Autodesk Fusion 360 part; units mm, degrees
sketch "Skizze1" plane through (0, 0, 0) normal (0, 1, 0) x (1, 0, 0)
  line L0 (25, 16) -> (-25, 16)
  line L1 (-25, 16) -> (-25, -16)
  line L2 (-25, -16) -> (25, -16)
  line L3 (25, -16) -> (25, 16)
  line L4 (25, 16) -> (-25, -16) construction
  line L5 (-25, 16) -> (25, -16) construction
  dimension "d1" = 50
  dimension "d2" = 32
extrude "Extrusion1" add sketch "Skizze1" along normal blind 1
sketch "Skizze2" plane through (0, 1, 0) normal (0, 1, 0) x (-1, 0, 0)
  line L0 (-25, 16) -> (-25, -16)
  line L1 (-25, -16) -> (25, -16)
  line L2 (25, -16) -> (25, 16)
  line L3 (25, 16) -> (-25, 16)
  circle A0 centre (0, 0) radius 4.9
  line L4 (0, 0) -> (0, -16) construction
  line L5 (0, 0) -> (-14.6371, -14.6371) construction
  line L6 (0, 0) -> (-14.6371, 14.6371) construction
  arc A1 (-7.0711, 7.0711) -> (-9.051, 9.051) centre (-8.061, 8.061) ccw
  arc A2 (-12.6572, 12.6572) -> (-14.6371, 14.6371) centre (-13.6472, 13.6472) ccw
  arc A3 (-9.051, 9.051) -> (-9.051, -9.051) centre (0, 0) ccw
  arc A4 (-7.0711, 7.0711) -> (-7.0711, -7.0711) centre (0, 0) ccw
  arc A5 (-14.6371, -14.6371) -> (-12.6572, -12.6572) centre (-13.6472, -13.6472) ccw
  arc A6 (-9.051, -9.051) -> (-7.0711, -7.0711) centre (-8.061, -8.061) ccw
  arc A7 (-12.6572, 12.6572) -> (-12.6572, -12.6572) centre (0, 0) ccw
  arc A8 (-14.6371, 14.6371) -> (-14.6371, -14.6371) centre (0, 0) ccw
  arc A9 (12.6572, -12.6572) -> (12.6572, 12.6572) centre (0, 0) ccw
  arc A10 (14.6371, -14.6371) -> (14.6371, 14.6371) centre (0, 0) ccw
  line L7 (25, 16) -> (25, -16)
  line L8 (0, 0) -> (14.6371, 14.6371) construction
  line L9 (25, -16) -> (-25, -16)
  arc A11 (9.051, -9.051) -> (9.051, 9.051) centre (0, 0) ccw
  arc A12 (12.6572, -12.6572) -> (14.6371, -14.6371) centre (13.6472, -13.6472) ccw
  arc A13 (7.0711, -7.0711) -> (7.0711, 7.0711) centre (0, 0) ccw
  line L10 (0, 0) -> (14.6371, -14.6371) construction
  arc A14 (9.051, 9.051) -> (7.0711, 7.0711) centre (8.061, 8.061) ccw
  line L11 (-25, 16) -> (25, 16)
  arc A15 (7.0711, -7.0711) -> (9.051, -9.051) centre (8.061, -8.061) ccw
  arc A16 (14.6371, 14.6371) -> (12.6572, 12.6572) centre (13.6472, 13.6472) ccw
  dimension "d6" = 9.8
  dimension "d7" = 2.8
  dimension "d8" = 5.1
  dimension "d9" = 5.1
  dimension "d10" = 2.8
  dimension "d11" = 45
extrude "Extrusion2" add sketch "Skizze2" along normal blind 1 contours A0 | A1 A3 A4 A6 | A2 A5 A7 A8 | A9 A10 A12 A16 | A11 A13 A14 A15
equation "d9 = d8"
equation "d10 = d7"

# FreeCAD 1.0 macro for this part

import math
import FreeCAD as App
import Part
import Sketcher

V = App.Vector


def add_polygon(sketch, points):
    """Adds a closed chain of lines whose ends are joined by coincident constraints."""
    first, n = sketch.GeometryCount, len(points)
    for a, b in zip(points, points[1:] + points[:1]):
        sketch.addGeometry(Part.LineSegment(App.Vector(*a, 0), App.Vector(*b, 0)), False)
    for i in range(n):
        sketch.addConstraint(Sketcher.Constraint("Coincident", first + i, 2, first + (i + 1) % n, 1))

doc = App.newDocument("Part")
body = doc.addObject("PartDesign::Body", "Body")

# Sketch on XZ plane
sketch1 = body.newObject("Sketcher::SketchObject", "Sketch")
sketch1.AttachmentSupport = (doc.getObject("XZ_Plane"), [""])
sketch1.MapMode = "FlatFace"
add_polygon(sketch1, [(25, 16), (25, -16), (-25, -16), (-25, 16)])  # lines 0-3
sketch1.addConstraint([
    Sketcher.Constraint("Vertical", 0),
    Sketcher.Constraint("Horizontal", 1),
    Sketcher.Constraint("Vertical", 2),
    Sketcher.Constraint("Horizontal", 3),
    Sketcher.Constraint("Symmetric", 0, 2, 2, 2, -1, 1),
    Sketcher.Constraint("DistanceX", 1, 2, 1, 1, 50.0),
    Sketcher.Constraint("DistanceY", 0, 2, 0, 1, 32.0),
])
pad1 = body.newObject("PartDesign::Pad", "Pad")
pad1.Profile = sketch1
pad1.Length = 1
pad1.Reversed = True

# Sketch on XZ plane
sketch2 = body.newObject("Sketcher::SketchObject", "Sketch001")
sketch2.AttachmentSupport = (doc.getObject("XZ_Plane"), [""])
sketch2.MapMode = "FlatFace"
sketch2.AttachmentOffset = App.Placement(V(0, 0, -1), App.Rotation())
sketch2.addGeometry([
    Part.Circle(V(0, 0, 0), V(0, 0, 1), 4.9),  # 0
    Part.ArcOfCircle(Part.Circle(V(0, 0, 0), V(0, 0, 1), 10), math.radians(-45), math.radians(45)),  # 1
    Part.ArcOfCircle(Part.Circle(V(8.1, 8.1, 0), V(0, 0, 1), 1.4), math.radians(45), math.radians(225)),  # 2
    Part.ArcOfCircle(Part.Circle(V(0, 0, 0), V(0, 0, 1), 12.8), math.radians(-45), math.radians(45)),  # 3
    Part.ArcOfCircle(Part.Circle(V(8.1, -8.1, 0), V(0, 0, 1), 1.4), math.radians(135), math.radians(315)),  # 4
    Part.ArcOfCircle(Part.Circle(V(0, 0, 0), V(0, 0, 1), 17.9), math.radians(-45), math.radians(45)),  # 5
    Part.ArcOfCircle(Part.Circle(V(13.6, 13.6, 0), V(0, 0, 1), 1.4), math.radians(45), math.radians(225)),  # 6
    Part.ArcOfCircle(Part.Circle(V(0, 0, 0), V(0, 0, 1), 20.7), math.radians(-45), math.radians(45)),  # 7
    Part.ArcOfCircle(Part.Circle(V(13.6, -13.6, 0), V(0, 0, 1), 1.4), math.radians(135), math.radians(315)),  # 8
    Part.ArcOfCircle(Part.Circle(V(0, 0, 0), V(0, 0, 1), 17.9), math.radians(135), math.radians(225)),  # 9
    Part.ArcOfCircle(Part.Circle(V(-13.6, -13.6, 0), V(0, 0, 1), 1.4), math.radians(-135), math.radians(45)),  # 10
    Part.ArcOfCircle(Part.Circle(V(0, 0, 0), V(0, 0, 1), 20.7), math.radians(135), math.radians(225)),  # 11
    Part.ArcOfCircle(Part.Circle(V(-13.6, 13.6, 0), V(0, 0, 1), 1.4), math.radians(-45), math.radians(135)),  # 12
    Part.ArcOfCircle(Part.Circle(V(-8.1, -8.1, 0), V(0, 0, 1), 1.4), math.radians(-135), math.radians(45)),  # 13
    Part.ArcOfCircle(Part.Circle(V(0, 0, 0), V(0, 0, 1), 12.8), math.radians(135), math.radians(225)),  # 14
    Part.ArcOfCircle(Part.Circle(V(-8.1, 8.1, 0), V(0, 0, 1), 1.4), math.radians(-45), math.radians(135)),  # 15
    Part.ArcOfCircle(Part.Circle(V(0, 0, 0), V(0, 0, 1), 10), math.radians(135), math.radians(225)),  # 16
], False)
sketch2.addConstraint([
    Sketcher.Constraint("Tangent", 1, 2, 2, 2),
    Sketcher.Constraint("Tangent", 2, 1, 3, 2),
    Sketcher.Constraint("Tangent", 3, 1, 4, 2),
    Sketcher.Constraint("Tangent", 4, 1, 1, 1),
    Sketcher.Constraint("Tangent", 5, 2, 6, 2),
    Sketcher.Constraint("Tangent", 6, 1, 7, 2),
    Sketcher.Constraint("Tangent", 7, 1, 8, 2),
    Sketcher.Constraint("Tangent", 8, 1, 5, 1),
    Sketcher.Constraint("Tangent", 9, 2, 10, 2),
    Sketcher.Constraint("Tangent", 10, 1, 11, 2),
    Sketcher.Constraint("Tangent", 11, 1, 12, 2),
    Sketcher.Constraint("Tangent", 12, 1, 9, 1),
    Sketcher.Constraint("Tangent", 13, 1, 14, 2),
    Sketcher.Constraint("Tangent", 14, 1, 15, 2),
    Sketcher.Constraint("Tangent", 15, 1, 16, 1),
    Sketcher.Constraint("Tangent", 16, 2, 13, 2),
    Sketcher.Constraint("Coincident", 0, 3, -1, 1),
    Sketcher.Constraint("Coincident", 1, 3, -1, 1),
    Sketcher.Constraint("Coincident", 3, 3, -1, 1),
    Sketcher.Constraint("Coincident", 5, 3, -1, 1),
    Sketcher.Constraint("Coincident", 7, 3, -1, 1),
    Sketcher.Constraint("Coincident", 9, 3, -1, 1),
    Sketcher.Constraint("Coincident", 11, 3, -1, 1),
    Sketcher.Constraint("Coincident", 14, 3, -1, 1),
    Sketcher.Constraint("Coincident", 16, 3, -1, 1),
    Sketcher.Constraint("Equal", 4, 6),
    Sketcher.Constraint("Equal", 5, 9),
    Sketcher.Constraint("Equal", 8, 10),
    Sketcher.Constraint("Equal", 12, 13),
    Sketcher.Constraint("Equal", 3, 14),
    Sketcher.Constraint("Horizontal", 8, 3, 10, 3),
    Sketcher.Constraint("Horizontal", 6, 3, 12, 3),
    Sketcher.Constraint("Horizontal", 4, 3, 13, 3),
    Sketcher.Constraint("Horizontal", 2, 3, 15, 3),
    Sketcher.Constraint("Vertical", 2, 3, 4, 3),
    Sketcher.Constraint("Vertical", 6, 3, 8, 3),
    Sketcher.Constraint("Diameter", 0, 9.8),
    Sketcher.Constraint("Radius", 2, 1.4),
    Sketcher.Constraint("Radius", 1, 10.0),
    Sketcher.Constraint("Radius", 5, 17.9),
    Sketcher.Constraint("DistanceX", 1, 2, 2, 3, 0.99),
    Sketcher.Constraint("DistanceX", 6, 3, 6, 1, 0.99),
])
pad2 = body.newObject("PartDesign::Pad", "Pad001")
pad2.Profile = sketch2
pad2.Length = 1
pad2.Reversed = True

doc.recompute()
